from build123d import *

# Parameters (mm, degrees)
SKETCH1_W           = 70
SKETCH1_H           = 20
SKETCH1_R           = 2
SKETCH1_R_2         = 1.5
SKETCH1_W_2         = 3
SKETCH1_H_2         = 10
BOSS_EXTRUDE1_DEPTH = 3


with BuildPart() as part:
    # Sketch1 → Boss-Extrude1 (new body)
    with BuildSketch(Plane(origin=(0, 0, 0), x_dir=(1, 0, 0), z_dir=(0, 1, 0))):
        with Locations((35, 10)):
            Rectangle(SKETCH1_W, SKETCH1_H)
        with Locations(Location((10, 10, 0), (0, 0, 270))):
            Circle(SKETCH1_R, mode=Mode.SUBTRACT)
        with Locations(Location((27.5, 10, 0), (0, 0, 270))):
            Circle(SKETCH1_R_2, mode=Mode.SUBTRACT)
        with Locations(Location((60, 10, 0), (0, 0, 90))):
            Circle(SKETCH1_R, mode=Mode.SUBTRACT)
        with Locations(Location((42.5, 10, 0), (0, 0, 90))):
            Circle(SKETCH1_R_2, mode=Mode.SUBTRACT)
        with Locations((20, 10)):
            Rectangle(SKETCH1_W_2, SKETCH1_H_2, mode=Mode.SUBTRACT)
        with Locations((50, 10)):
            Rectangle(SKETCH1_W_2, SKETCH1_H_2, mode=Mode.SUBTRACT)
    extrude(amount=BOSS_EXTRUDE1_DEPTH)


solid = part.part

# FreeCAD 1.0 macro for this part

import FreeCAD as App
import Part
import Sketcher


def add_polygon(sketch, points):
    """Adds a closed chain of lines whose ends are joined by coincident constraints."""
    first, n = sketch.GeometryCount, len(points)
    for a, b in zip(points, points[1:] + points[:1]):
        sketch.addGeometry(Part.LineSegment(App.Vector(*a, 0), App.Vector(*b, 0)), False)
    for i in range(n):
        sketch.addConstraint(Sketcher.Constraint("Coincident", first + i, 2, first + (i + 1) % n, 1))

doc = App.newDocument("Part")
body = doc.addObject("PartDesign::Body", "Body")

sketch1 = body.newObject("Sketcher::SketchObject", "Sketch")
sketch1.AttachmentSupport = (doc.getObject("XZ_Plane"), [""])
sketch1.MapMode = "FlatFace"
add_polygon(sketch1, [(0, -20), (0, 0), (70, 0), (70, -20)])
sketch1.addGeometry(Part.Circle(App.Vector(10, -10, 0), App.Vector(0, 0, 1), 2), False)
add_polygon(sketch1, [(21.5, -5), (18.5, -5), (18.5, -15), (21.5, -15)])
sketch1.addGeometry(Part.Circle(App.Vector(27.5, -10, 0), App.Vector(0, 0, 1), 1.5), False)
sketch1.addGeometry(Part.Circle(App.Vector(42.5, -10, 0), App.Vector(0, 0, 1), 1.5), False)
add_polygon(sketch1, [(51.5, -5), (48.5, -5), (48.5, -15), (51.5, -15)])
sketch1.addGeometry(Part.Circle(App.Vector(60, -10, 0), App.Vector(0, 0, 1), 2), False)
sketch1.addConstraint([
    Sketcher.Constraint("Vertical", 0),
    Sketcher.Constraint("Horizontal", 1),
    Sketcher.Constraint("Vertical", 2),
    Sketcher.Constraint("Horizontal", 3),
    Sketcher.Constraint("Horizontal", 5),
    Sketcher.Constraint("Vertical", 6),
    Sketcher.Constraint("Horizontal", 7),
    Sketcher.Constraint("Vertical", 8),
    Sketcher.Constraint("Horizontal", 11),
    Sketcher.Constraint("Vertical", 12),
    Sketcher.Constraint("Horizontal", 13),
    Sketcher.Constraint("Vertical", 14),
    Sketcher.Constraint("Coincident", 0, 2, -1, 1),
    Sketcher.Constraint("Equal", 9, 10),
    Sketcher.Constraint("Equal", 4, 15),
    Sketcher.Constraint("Horizontal", 4, 3, 9, 3),
    Sketcher.Constraint("Horizontal", 9, 3, 10, 3),
    Sketcher.Constraint("Horizontal", 10, 3, 15, 3),
    Sketcher.Constraint("Horizontal", 8, 2, 11, 2),
    Sketcher.Constraint("Horizontal", 7, 2, 12, 2),
    Sketcher.Constraint("Equal", 7, 11),
    Sketcher.Constraint("Diameter", 4, 4.0),
    Sketcher.Constraint("Diameter", 9, 3.0),
    Sketcher.Constraint("DistanceX", 1, 1, 1, 2, 70.0),
    Sketcher.Constraint("DistanceX", 5, 2, 5, 1, 3.0),
    Sketcher.Constraint("DistanceY", 0, 1, 0, 2, 20.0),
    Sketcher.Constraint("DistanceY", 6, 2, 6, 1, 10.0),
    Sketcher.Constraint("DistanceX", -1, 1, 4, 3, 10.0),
    Sketcher.Constraint("DistanceY", 4, 3, -1, 1, 10.0),
    Sketcher.Constraint("DistanceX", -1, 1, 15, 3, 60.0),
    Sketcher.Constraint("DistanceY", 5, 2, -1, 1, 5.0),
    Sketcher.Constraint("DistanceX", 9, 3, 10, 3, 15.0),
    Sketcher.Constraint("DistanceX", 5, 2, 9, 3, 9.0),
    Sketcher.Constraint("DistanceX", 10, 3, 11, 2, 6.0),
    Sketcher.Constraint("DistanceX", -1, 1, 9, 3, 27.5),
])
pad1 = body.newObject("PartDesign::Pad", "Pad")
pad1.Profile = sketch1
pad1.Length = 3
pad1.Reversed = True

doc.recompute()
